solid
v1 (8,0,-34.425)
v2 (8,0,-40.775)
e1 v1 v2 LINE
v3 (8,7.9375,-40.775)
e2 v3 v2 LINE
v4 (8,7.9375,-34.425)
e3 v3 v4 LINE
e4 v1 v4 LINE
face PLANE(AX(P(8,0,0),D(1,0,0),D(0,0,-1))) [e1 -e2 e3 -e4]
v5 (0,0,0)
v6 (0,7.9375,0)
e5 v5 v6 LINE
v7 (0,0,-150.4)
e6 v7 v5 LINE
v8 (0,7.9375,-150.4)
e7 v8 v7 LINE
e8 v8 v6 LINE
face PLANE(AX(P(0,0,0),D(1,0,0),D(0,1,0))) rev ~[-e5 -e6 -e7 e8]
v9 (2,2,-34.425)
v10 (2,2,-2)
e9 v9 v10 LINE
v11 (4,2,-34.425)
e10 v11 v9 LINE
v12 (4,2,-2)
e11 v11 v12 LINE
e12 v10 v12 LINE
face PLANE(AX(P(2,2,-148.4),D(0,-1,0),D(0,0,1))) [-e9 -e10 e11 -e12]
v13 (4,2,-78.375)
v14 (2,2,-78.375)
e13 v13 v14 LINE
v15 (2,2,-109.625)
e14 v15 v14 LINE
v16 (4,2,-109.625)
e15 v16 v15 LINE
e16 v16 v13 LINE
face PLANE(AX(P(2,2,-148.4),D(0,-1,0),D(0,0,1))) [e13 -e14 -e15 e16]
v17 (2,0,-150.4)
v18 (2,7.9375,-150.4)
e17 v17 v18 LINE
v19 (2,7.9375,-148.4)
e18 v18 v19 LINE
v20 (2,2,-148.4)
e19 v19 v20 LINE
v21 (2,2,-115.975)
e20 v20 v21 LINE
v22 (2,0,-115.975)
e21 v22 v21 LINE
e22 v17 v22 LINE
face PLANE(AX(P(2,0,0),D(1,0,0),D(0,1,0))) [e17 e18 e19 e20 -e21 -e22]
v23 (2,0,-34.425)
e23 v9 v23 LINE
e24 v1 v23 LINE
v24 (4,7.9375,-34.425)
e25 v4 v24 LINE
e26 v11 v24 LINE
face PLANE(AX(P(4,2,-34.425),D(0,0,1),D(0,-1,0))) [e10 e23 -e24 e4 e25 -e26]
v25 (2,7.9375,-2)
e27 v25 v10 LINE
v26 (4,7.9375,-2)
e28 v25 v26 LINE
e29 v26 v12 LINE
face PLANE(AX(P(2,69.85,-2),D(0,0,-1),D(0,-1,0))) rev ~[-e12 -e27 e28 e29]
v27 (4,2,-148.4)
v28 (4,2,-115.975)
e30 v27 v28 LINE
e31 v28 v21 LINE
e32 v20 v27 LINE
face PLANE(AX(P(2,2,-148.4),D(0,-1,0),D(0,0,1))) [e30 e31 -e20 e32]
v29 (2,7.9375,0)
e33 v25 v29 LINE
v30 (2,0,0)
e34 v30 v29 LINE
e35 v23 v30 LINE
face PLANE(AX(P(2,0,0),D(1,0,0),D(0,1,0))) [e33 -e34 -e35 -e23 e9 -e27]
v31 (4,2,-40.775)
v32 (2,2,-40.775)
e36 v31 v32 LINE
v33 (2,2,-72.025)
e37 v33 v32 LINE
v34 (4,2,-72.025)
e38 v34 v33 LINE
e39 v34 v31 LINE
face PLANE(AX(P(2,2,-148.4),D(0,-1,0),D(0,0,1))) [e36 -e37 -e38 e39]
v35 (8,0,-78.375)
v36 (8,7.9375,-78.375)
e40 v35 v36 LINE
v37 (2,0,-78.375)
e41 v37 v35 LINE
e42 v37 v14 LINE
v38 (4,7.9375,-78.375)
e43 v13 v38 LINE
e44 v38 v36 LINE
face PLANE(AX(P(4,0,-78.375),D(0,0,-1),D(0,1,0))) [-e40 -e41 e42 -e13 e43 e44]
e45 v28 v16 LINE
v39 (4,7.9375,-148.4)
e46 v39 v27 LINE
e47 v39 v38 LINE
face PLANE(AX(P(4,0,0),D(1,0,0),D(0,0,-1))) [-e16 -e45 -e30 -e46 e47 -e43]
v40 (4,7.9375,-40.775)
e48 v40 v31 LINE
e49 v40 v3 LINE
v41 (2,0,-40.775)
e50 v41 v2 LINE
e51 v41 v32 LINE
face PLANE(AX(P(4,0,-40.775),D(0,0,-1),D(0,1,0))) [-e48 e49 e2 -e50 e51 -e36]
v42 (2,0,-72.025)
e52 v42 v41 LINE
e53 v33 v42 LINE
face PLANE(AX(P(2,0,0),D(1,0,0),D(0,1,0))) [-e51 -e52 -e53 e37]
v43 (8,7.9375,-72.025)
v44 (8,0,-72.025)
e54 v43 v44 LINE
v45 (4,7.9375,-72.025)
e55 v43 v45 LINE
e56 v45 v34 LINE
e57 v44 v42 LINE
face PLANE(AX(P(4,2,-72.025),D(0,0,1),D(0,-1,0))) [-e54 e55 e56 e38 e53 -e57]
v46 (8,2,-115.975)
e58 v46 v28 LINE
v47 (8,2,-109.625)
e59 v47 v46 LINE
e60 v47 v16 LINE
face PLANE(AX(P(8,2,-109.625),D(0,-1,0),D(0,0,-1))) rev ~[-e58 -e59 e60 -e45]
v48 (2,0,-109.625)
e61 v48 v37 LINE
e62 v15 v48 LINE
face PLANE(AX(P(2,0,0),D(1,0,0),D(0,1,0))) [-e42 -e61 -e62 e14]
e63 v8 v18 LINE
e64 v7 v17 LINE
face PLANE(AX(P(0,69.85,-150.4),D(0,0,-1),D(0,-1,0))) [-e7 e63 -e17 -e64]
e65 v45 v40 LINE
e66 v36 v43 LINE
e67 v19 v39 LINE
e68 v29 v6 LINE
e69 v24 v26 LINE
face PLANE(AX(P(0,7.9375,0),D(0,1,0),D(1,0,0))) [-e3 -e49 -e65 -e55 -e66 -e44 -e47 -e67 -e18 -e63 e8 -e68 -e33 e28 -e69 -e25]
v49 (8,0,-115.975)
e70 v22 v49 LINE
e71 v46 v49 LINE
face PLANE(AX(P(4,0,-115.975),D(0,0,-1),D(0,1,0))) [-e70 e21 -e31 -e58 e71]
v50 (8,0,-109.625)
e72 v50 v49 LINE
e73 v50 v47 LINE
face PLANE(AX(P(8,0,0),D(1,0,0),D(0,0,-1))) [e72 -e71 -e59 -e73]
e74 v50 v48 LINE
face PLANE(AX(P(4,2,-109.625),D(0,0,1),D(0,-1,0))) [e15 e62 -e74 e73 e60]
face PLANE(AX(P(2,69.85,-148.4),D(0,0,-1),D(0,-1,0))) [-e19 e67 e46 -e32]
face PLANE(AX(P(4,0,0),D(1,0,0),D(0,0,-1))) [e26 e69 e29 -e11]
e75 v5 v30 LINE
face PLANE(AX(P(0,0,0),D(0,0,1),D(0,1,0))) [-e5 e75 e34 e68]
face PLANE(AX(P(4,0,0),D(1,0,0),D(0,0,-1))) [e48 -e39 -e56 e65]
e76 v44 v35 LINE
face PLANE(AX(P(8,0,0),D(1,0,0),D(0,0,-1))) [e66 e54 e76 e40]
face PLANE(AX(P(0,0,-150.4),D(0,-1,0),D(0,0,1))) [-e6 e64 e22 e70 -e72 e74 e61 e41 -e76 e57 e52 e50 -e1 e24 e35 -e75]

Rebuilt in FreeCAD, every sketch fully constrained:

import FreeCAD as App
import Part
import Sketcher

V = App.Vector


def add_polygon(sketch, points):
    """Adds a closed chain of lines whose ends are joined by coincident constraints."""
    first, n = sketch.GeometryCount, len(points)
    for a, b in zip(points, points[1:] + points[:1]):
        sketch.addGeometry(Part.LineSegment(App.Vector(*a, 0), App.Vector(*b, 0)), False)
    for i in range(n):
        sketch.addConstraint(Sketcher.Constraint("Coincident", first + i, 2, first + (i + 1) % n, 1))

doc = App.newDocument("Part")
body = doc.addObject("PartDesign::Body", "Body")
body.AllowCompound = True

# Sketch on YZ plane
sketch1 = doc.addObject("Sketcher::SketchObject", "Sketch")
body.addObject(sketch1)
sketch1.AttachmentSupport = (doc.YZ_Plane, [""])
sketch1.MapMode = "FlatFace"
add_polygon(sketch1, [(70, 0), (0, 0), (0, -150), (70, -150)])  # lines 0-3
sketch1.addConstraint([
    Sketcher.Constraint("Horizontal", 0),
    Sketcher.Constraint("Vertical", 1),
    Sketcher.Constraint("Horizontal", 2),
    Sketcher.Constraint("Vertical", 3),
    Sketcher.Constraint("Coincident", 0, 2, -1, 1),
    Sketcher.Constraint("DistanceY", 1, 2, 1, 1, 150.4),
    Sketcher.Constraint("DistanceX", 0, 2, 0, 1, 69.85),
])
pad1 = doc.addObject("PartDesign::Pad", "Pad")
body.addObject(pad1)
pad1.Profile = sketch1
pad1.Length = 2

# Sketch on YZ plane
sketch2 = doc.addObject("Sketcher::SketchObject", "Sketch001")
body.addObject(sketch2)
sketch2.AttachmentSupport = (doc.YZ_Plane, [""])
sketch2.MapMode = "FlatFace"
sketch2.AttachmentOffset = App.Placement(V(0, 0, 2), App.Rotation())
add_polygon(sketch2, [(2, -2), (2, -148), (70, -148), (70, -2)])  # lines 0-3
sketch2.addConstraint([
    Sketcher.Constraint("Vertical", 0),
    Sketcher.Constraint("Horizontal", 1),
    Sketcher.Constraint("Vertical", 2),
    Sketcher.Constraint("Horizontal", 3),
    Sketcher.Constraint("DistanceX", -1, 1, 0, 2, 2.0),
    Sketcher.Constraint("DistanceY", 2, 2, -1, 1, 2.0),
    Sketcher.Constraint("DistanceY", 0, 2, 0, 1, 146.4),
    Sketcher.Constraint("DistanceX", 1, 1, 1, 2, 67.85),
])
pad2 = doc.addObject("PartDesign::Pad", "Pad001")
body.addObject(pad2)
pad2.Profile = sketch2
pad2.Length = 2

# Sketch on YZ plane
sketch3 = doc.addObject("Sketcher::SketchObject", "Sketch002")
body.addObject(sketch3)
sketch3.AttachmentSupport = (doc.YZ_Plane, [""])
sketch3.MapMode = "FlatFace"
sketch3.AttachmentOffset = App.Placement(V(0, 0, 4), App.Rotation())
add_polygon(sketch3, [(0, -110), (0, -116), (70, -116), (70, -110)])  # lines 0-3
add_polygon(sketch3, [(0, -72), (0, -78), (70, -78), (70, -72)])  # lines 4-7
add_polygon(sketch3, [(0, -34), (0, -41), (70, -41), (70, -34)])  # lines 8-11
sketch3.addConstraint([
    Sketcher.Constraint("Vertical", 0),
    Sketcher.Constraint("Horizontal", 1),
    Sketcher.Constraint("Vertical", 2),
    Sketcher.Constraint("Horizontal", 3),
    Sketcher.Constraint("Vertical", 4),
    Sketcher.Constraint("Horizontal", 5),
    Sketcher.Constraint("Vertical", 6),
    Sketcher.Constraint("Horizontal", 7),
    Sketcher.Constraint("Vertical", 8),
    Sketcher.Constraint("Horizontal", 9),
    Sketcher.Constraint("Vertical", 10),
    Sketcher.Constraint("Horizontal", 11),
    Sketcher.Constraint("PointOnObject", 0, 2, -2),
    Sketcher.Constraint("PointOnObject", 4, 2, -2),
    Sketcher.Constraint("PointOnObject", 8, 2, -2),
    Sketcher.Constraint("Vertical", 2, 2, 5, 2),
    Sketcher.Constraint("Vertical", 6, 2, 9, 2),
    Sketcher.Constraint("Equal", 2, 4),
    Sketcher.Constraint("Equal", 6, 8),
    Sketcher.Constraint("DistanceY", 0, 2, 0, 1, 6.35),
    Sketcher.Constraint("DistanceX", 1, 1, 1, 2, 69.85),
    Sketcher.Constraint("DistanceY", 0, 2, 4, 2, 37.6),
    Sketcher.Constraint("DistanceY", 4, 2, 8, 2, 37.6),
    Sketcher.Constraint("DistanceY", 0, 2, -1, 1, 115.975),
])
pad3 = doc.addObject("PartDesign::Pad", "Pad002")
body.addObject(pad3)
pad3.Profile = sketch3
pad3.Length = 4

# Sketch on XZ plane
sketch4 = doc.addObject("Sketcher::SketchObject", "Sketch003")
body.addObject(sketch4)
sketch4.AttachmentSupport = (doc.XZ_Plane, [""])
sketch4.MapMode = "FlatFace"
sketch4.AttachmentOffset = App.Placement(V(0, 0, -69.85), App.Rotation())
add_polygon(sketch4, [(8, -150), (2, -150), (2, 0), (8, 0)])  # lines 0-3
sketch4.addConstraint([
    Sketcher.Constraint("Horizontal", 0),
    Sketcher.Constraint("Vertical", 1),
    Sketcher.Constraint("Horizontal", 2),
    Sketcher.Constraint("Vertical", 3),
    Sketcher.Constraint("PointOnObject", 1, 2, -1),
    Sketcher.Constraint("DistanceX", 0, 2, 0, 1, 6.0),
    Sketcher.Constraint("DistanceY", 1, 1, 1, 2, 150.4),
    Sketcher.Constraint("DistanceX", -1, 1, 0, 2, 2.0),
])
pocket1 = doc.addObject("PartDesign::Pocket", "Pocket")
body.addObject(pocket1)
pocket1.Profile = sketch4
pocket1.Length = 2
pocket1.Reversed = True

# Sketch on XZ plane
sketch5 = doc.addObject("Sketcher::SketchObject", "Sketch004")
body.addObject(sketch5)
sketch5.AttachmentSupport = (doc.XZ_Plane, [""])
sketch5.MapMode = "FlatFace"
sketch5.AttachmentOffset = App.Placement(V(0, 0, -67.85), App.Rotation())
add_polygon(sketch5, [(4, -148.4), (4, -116), (8, -116), (8, -148.4)])  # lines 0-3
add_polygon(sketch5, [(8, -78.4), (8, -109.6), (4, -109.6), (4, -78.4)])  # lines 4-7
add_polygon(sketch5, [(8, -40.8), (8, -72), (4, -72), (4, -40.8)])  # lines 8-11
add_polygon(sketch5, [(4, -34.4), (4, -2), (8, -2), (8, -34.4)])  # lines 12-15
sketch5.addConstraint([
    Sketcher.Constraint("Vertical", 0),
    Sketcher.Constraint("Horizontal", 1),
    Sketcher.Constraint("Vertical", 2),
    Sketcher.Constraint("Horizontal", 3),
    Sketcher.Constraint("Vertical", 4),
    Sketcher.Constraint("Horizontal", 5),
    Sketcher.Constraint("Vertical", 6),
    Sketcher.Constraint("Horizontal", 7),
    Sketcher.Constraint("Vertical", 8),
    Sketcher.Constraint("Horizontal", 9),
    Sketcher.Constraint("Vertical", 10),
    Sketcher.Constraint("Horizontal", 11),
    Sketcher.Constraint("Vertical", 12),
    Sketcher.Constraint("Horizontal", 13),
    Sketcher.Constraint("Vertical", 14),
    Sketcher.Constraint("Horizontal", 15),
    Sketcher.Constraint("Vertical", 2, 2, 4, 2),
    Sketcher.Constraint("Vertical", 3, 2, 5, 2),
    Sketcher.Constraint("Vertical", 7, 2, 8, 2),
    Sketcher.Constraint("Vertical", 6, 2, 9, 2),
    Sketcher.Constraint("Vertical", 10, 2, 12, 2),
    Sketcher.Constraint("Vertical", 11, 2, 13, 2),
    Sketcher.Constraint("Equal", 6, 8),
    Sketcher.Constraint("Equal", 2, 12),
    Sketcher.Constraint("DistanceX", 1, 1, 1, 2, 4.0),
    Sketcher.Constraint("DistanceX", -1, 1, 0, 2, 4.0),
    Sketcher.Constraint("DistanceY", 12, 2, -1, 1, 2.0),
    Sketcher.Constraint("DistanceY", 4, 2, 4, 1, 31.25),
    Sketcher.Constraint("DistanceY", 2, 2, -1, 1, 148.4),
    Sketcher.Constraint("DistanceY", 0, 2, 6, 2, 37.6),
    Sketcher.Constraint("DistanceY", 4, 2, 8, 2, 37.6),
    Sketcher.Constraint("DistanceY", 8, 2, 14, 2, 37.6),
])
pad4 = doc.addObject("PartDesign::Pad", "Pad003")
body.addObject(pad4)
pad4.Profile = sketch5
pad4.Length = 2

# Sketch on YZ plane
sketch6 = doc.addObject("Sketcher::SketchObject", "Sketch005")
body.addObject(sketch6)
sketch6.AttachmentSupport = (doc.YZ_Plane, [""])
sketch6.MapMode = "FlatFace"
sketch6.AttachmentOffset = App.Placement(V(0, 0, 4), App.Rotation())
add_polygon(sketch6, [(35, -108), (29, -108), (29, -121), (35, -121)])  # lines 0-3
add_polygon(sketch6, [(29, -67), (29, -80), (35, -80), (35, -67)])  # lines 4-7
sketch6.addConstraint([
    Sketcher.Constraint("Horizontal", 0),
    Sketcher.Constraint("Vertical", 1),
    Sketcher.Constraint("Horizontal", 2),
    Sketcher.Constraint("Vertical", 3),
    Sketcher.Constraint("Vertical", 4),
    Sketcher.Constraint("Horizontal", 5),
    Sketcher.Constraint("Vertical", 6),
    Sketcher.Constraint("Horizontal", 7),
    Sketcher.Constraint("Vertical", 1, 2, 4, 2),
    Sketcher.Constraint("Vertical", 3, 2, 5, 2),
    Sketcher.Constraint("Equal", 3, 4),
    Sketcher.Constraint("DistanceX", 0, 2, 0, 1, 6.0),
    Sketcher.Constraint("DistanceY", 1, 2, 1, 1, 12.7),
    Sketcher.Constraint("DistanceY", 1, 2, 4, 2, 40.64),
    Sketcher.Constraint("DistanceX", -1, 1, 0, 2, 28.67),
    Sketcher.Constraint("DistanceY", 0, 2, -1, 1, 107.97),
])
pad5 = doc.addObject("PartDesign::Pad", "Pad004")
body.addObject(pad5)
pad5.Profile = sketch6
pad5.Length = 33.02

# Sketch on XZ plane
sketch7 = doc.addObject("Sketcher::SketchObject", "Sketch006")
body.addObject(sketch7)
sketch7.AttachmentSupport = (doc.XZ_Plane, [""])
sketch7.MapMode = "FlatFace"
sketch7.AttachmentOffset = App.Placement(V(0, 0, -34.67), App.Rotation())
sketch7.addGeometry([
    Part.Circle(V(22.5, -73.7, 0), V(0, 0, 1), 2.2),
    Part.Circle(V(22.5, -114.3, 0), V(0, 0, 1), 2.2),
], False)
sketch7.addConstraint([
    Sketcher.Constraint("Equal", 0, 1),
    Sketcher.Constraint("Vertical", 0, 3, 1, 3),
    Sketcher.Constraint("Diameter", 0, 4.5),
    Sketcher.Constraint("DistanceX", -1, 1, 0, 3, 22.51),
    Sketcher.Constraint("DistanceY", 0, 3, -1, 1, 73.68),
    Sketcher.Constraint("DistanceY", 1, 3, -1, 1, 114.32),
])
pocket2 = doc.addObject("PartDesign::Pocket", "Pocket001")
body.addObject(pocket2)
pocket2.Profile = sketch7
pocket2.Length = 5
pocket2.Reversed = True

# Sketch on YZ plane
sketch8 = doc.addObject("Sketcher::SketchObject", "Sketch007")
body.addObject(sketch8)
sketch8.AttachmentSupport = (doc.YZ_Plane, [""])
sketch8.MapMode = "FlatFace"
sketch8.AttachmentOffset = App.Placement(V(0, 0, 8), App.Rotation())
add_polygon(sketch8, [(2, -116), (29, -116), (29, -110), (2, -110)])  # lines 0-3
sketch8.addConstraint([
    Sketcher.Constraint("Horizontal", 0),
    Sketcher.Constraint("Vertical", 1),
    Sketcher.Constraint("Horizontal", 2),
    Sketcher.Constraint("Vertical", 3),
    Sketcher.Constraint("DistanceX", -1, 1, 2, 2, 2.0),
    Sketcher.Constraint("DistanceX", 0, 1, 0, 2, 26.67),
    Sketcher.Constraint("DistanceY", 1, 1, 1, 2, 6.35),
    Sketcher.Constraint("DistanceY", 0, 2, -1, 1, 115.975),
])
pocket3 = doc.addObject("PartDesign::Pocket", "Pocket002")
body.addObject(pocket3)
pocket3.Profile = sketch8
pocket3.Length = 4

# Sketch on YZ plane
sketch9 = doc.addObject("Sketcher::SketchObject", "Sketch008")
body.addObject(sketch9)
sketch9.AttachmentSupport = (doc.YZ_Plane, [""])
sketch9.MapMode = "FlatFace"
sketch9.AttachmentOffset = App.Placement(V(0, 0, 4), App.Rotation())
add_polygon(sketch9, [(0, -109.6), (2, -109.6), (2, -116), (0, -116)])  # lines 0-3
add_polygon(sketch9, [(0, -72), (2, -72), (2, -78.4), (0, -78.4)])  # lines 4-7
add_polygon(sketch9, [(0, -34.4), (2, -34.4), (2, -40.8), (0, -40.8)])  # lines 8-11
sketch9.addConstraint([
    Sketcher.Constraint("Horizontal", 0),
    Sketcher.Constraint("Vertical", 1),
    Sketcher.Constraint("Horizontal", 2),
    Sketcher.Constraint("Vertical", 3),
    Sketcher.Constraint("Horizontal", 4),
    Sketcher.Constraint("Vertical", 5),
    Sketcher.Constraint("Horizontal", 6),
    Sketcher.Constraint("Vertical", 7),
    Sketcher.Constraint("Horizontal", 8),
    Sketcher.Constraint("Vertical", 9),
    Sketcher.Constraint("Horizontal", 10),
    Sketcher.Constraint("Vertical", 11),
    Sketcher.Constraint("PointOnObject", 2, 2, -2),
    Sketcher.Constraint("PointOnObject", 6, 2, -2),
    Sketcher.Constraint("PointOnObject", 10, 2, -2),
    Sketcher.Constraint("Vertical", 1, 2, 4, 2),
    Sketcher.Constraint("Vertical", 5, 2, 8, 2),
    Sketcher.Constraint("Equal", 3, 5),
    Sketcher.Constraint("Equal", 7, 9),
    Sketcher.Constraint("DistanceX", 0, 1, 0, 2, 2.0),
    Sketcher.Constraint("DistanceY", 1, 2, 1, 1, 6.35),
    Sketcher.Constraint("DistanceY", 0, 2, 4, 2, 37.6),
    Sketcher.Constraint("DistanceY", 4, 2, 8, 2, 37.6),
    Sketcher.Constraint("DistanceY", 0, 2, -1, 1, 109.625),
])
pad6 = doc.addObject("PartDesign::Pad", "Pad005")
body.addObject(pad6)
pad6.Profile = sketch9
pad6.Length = 2
pad6.Reversed = True

# Sketch on XZ plane
sketch10 = doc.addObject("Sketcher::SketchObject", "Sketch009")
body.addObject(sketch10)
sketch10.AttachmentSupport = (doc.XZ_Plane, [""])
sketch10.MapMode = "FlatFace"
sketch10.AttachmentOffset = App.Placement(V(0, 0, -67.85), App.Rotation())
sketch10.addGeometry([
    Part.Circle(V(5, -37.6, 0), V(0, 0, 1), 2.2),
    Part.Circle(V(5, -112.8, 0), V(0, 0, 1), 2.2),
], False)
sketch10.addConstraint([
    Sketcher.Constraint("Equal", 0, 1),
    Sketcher.Constraint("Vertical", 0, 3, 1, 3),
    Sketcher.Constraint("Diameter", 0, 4.5),
    Sketcher.Constraint("DistanceX", -1, 1, 0, 3, 5.0),
    Sketcher.Constraint("DistanceY", 0, 3, -1, 1, 37.6),
    Sketcher.Constraint("DistanceY", 1, 3, -1, 1, 112.8),
])
pocket4 = doc.addObject("PartDesign::Pocket", "Pocket003")
body.addObject(pocket4)
pocket4.Profile = sketch10
pocket4.Length = 5
pocket4.Reversed = True

# Sketch on XZ plane
sketch11 = doc.addObject("Sketcher::SketchObject", "Sketch010")
body.addObject(sketch11)
sketch11.AttachmentSupport = (doc.XZ_Plane, [""])
sketch11.MapMode = "FlatFace"
sketch11.AttachmentOffset = App.Placement(V(0, 0, -69.85), App.Rotation())
add_polygon(sketch11, [(40, -153), (-4, -153), (-4, 2), (40, 2)])  # lines 0-3
sketch11.addConstraint([
    Sketcher.Constraint("Horizontal", 0),
    Sketcher.Constraint("Vertical", 1),
    Sketcher.Constraint("Horizontal", 2),
    Sketcher.Constraint("Vertical", 3),
    Sketcher.Constraint("DistanceX", 0, 2, 0, 1, 44.062),
    Sketcher.Constraint("DistanceY", 1, 1, 1, 2, 155.4542),
    Sketcher.Constraint("DistanceX", 0, 2, -1, 1, 4.169),
    Sketcher.Constraint("DistanceY", 0, 2, -1, 1, 153.055),
])
pocket5 = doc.addObject("PartDesign::Pocket", "Pocket004")
body.addObject(pocket5)
pocket5.Profile = sketch11
pocket5.Length = 61.9125
pocket5.Reversed = True

doc.recompute()
